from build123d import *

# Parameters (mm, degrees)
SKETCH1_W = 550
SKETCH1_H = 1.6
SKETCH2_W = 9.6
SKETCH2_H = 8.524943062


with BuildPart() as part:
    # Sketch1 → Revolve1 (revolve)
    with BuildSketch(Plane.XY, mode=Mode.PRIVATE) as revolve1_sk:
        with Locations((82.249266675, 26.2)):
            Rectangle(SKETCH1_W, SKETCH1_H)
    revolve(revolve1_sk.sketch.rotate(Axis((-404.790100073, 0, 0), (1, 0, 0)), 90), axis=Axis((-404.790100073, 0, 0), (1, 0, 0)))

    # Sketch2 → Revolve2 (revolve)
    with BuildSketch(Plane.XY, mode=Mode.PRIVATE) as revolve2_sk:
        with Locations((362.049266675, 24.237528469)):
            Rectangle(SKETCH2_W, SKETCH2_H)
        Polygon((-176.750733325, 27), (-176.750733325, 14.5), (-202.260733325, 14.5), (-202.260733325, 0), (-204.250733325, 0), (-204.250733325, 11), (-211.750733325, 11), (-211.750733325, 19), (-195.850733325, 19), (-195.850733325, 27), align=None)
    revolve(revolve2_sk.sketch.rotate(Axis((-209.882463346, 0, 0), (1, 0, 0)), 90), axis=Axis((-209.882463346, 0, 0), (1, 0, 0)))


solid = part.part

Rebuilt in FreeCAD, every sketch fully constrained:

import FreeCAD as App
import Part
import Sketcher


def add_polygon(sketch, points):
    """Adds a closed chain of lines whose ends are joined by coincident constraints."""
    first, n = sketch.GeometryCount, len(points)
    for a, b in zip(points, points[1:] + points[:1]):
        sketch.addGeometry(Part.LineSegment(App.Vector(*a, 0), App.Vector(*b, 0)), False)
    for i in range(n):
        sketch.addConstraint(Sketcher.Constraint("Coincident", first + i, 2, first + (i + 1) % n, 1))

doc = App.newDocument("Part")
body = doc.addObject("PartDesign::Body", "Body")

sketch1 = doc.addObject("Sketcher::SketchObject", "Sketch")
body.addObject(sketch1)
sketch1.AttachmentSupport = (doc.XY_Plane, [""])
sketch1.MapMode = "FlatFace"
add_polygon(sketch1, [(-192.8, 27), (-192.8, 25.4), (357.2, 25.4), (357.2, 27)])
sketch1.addConstraint([
    Sketcher.Constraint("Vertical", 0),
    Sketcher.Constraint("Horizontal", 1),
    Sketcher.Constraint("Vertical", 2),
    Sketcher.Constraint("Horizontal", 3),
    Sketcher.Constraint("DistanceX", 1, 1, 1, 2, 550.0),
    Sketcher.Constraint("DistanceY", 0, 2, 0, 1, 1.6),
    Sketcher.Constraint("DistanceY", -1, 1, 2, 2, 27.0),
    Sketcher.Constraint("DistanceX", 0, 2, -1, 1, 192.750733),
])
revolution = doc.addObject("PartDesign::Revolution", "Revolution")
body.addObject(revolution)
revolution.Profile = sketch1
revolution.ReferenceAxis = (sketch1, ["H_Axis"])
revolution.Angle = 360

sketch2 = doc.addObject("Sketcher::SketchObject", "Sketch001")
body.addObject(sketch2)
sketch2.AttachmentSupport = (doc.XY_Plane, [""])
sketch2.MapMode = "FlatFace"
add_polygon(sketch2, [(357.2, 28.5), (357.2, 20), (366.8, 20), (366.8, 28.5)])
add_polygon(sketch2, [(-176.8, 14.5), (-176.8, 27), (-195.9, 27), (-195.9, 19), (-211.8, 19), (-211.8, 11), (-204.3, 11), (-204.3, 0), (-202.3, 0), (-202.3, 14.5)])
sketch2.addConstraint([
    Sketcher.Constraint("Vertical", 0),
    Sketcher.Constraint("Horizontal", 1),
    Sketcher.Constraint("Vertical", 2),
    Sketcher.Constraint("Horizontal", 3),
    Sketcher.Constraint("Vertical", 4),
    Sketcher.Constraint("Horizontal", 5),
    Sketcher.Constraint("Vertical", 6),
    Sketcher.Constraint("Horizontal", 7),
    Sketcher.Constraint("Vertical", 8),
    Sketcher.Constraint("Horizontal", 9),
    Sketcher.Constraint("Vertical", 10),
    Sketcher.Constraint("Horizontal", 11),
    Sketcher.Constraint("Vertical", 12),
    Sketcher.Constraint("Horizontal", 13),
    Sketcher.Constraint("PointOnObject", 10, 2, -1),
    Sketcher.Constraint("Equal", 6, 8),
    Sketcher.Constraint("DistanceY", 6, 2, 6, 1, 8.0),
    Sketcher.Constraint("DistanceY", 10, 2, 10, 1, 11.0),
    Sketcher.Constraint("DistanceX", 1, 1, 1, 2, 9.6),
    Sketcher.Constraint("DistanceX", 5, 2, 5, 1, 19.1),
    Sketcher.Constraint("DistanceX", 7, 2, 7, 1, 15.9),
    Sketcher.Constraint("DistanceX", 9, 1, 9, 2, 7.5),
    Sketcher.Constraint("DistanceY", 4, 1, 4, 2, 12.5),
    Sketcher.Constraint("DistanceX", 4, 2, 3, 2, 534.0),
    Sketcher.Constraint("DistanceX", 11, 1, 11, 2, 1.99),
    Sketcher.Constraint("DistanceY", -1, 1, 2, 2, 28.5),
    Sketcher.Constraint("DistanceY", 0, 2, 0, 1, 8.524943),
    Sketcher.Constraint("DistanceX", -1, 1, 0, 2, 357.249267),
])
revolution2 = doc.addObject("PartDesign::Revolution", "Revolution001")
body.addObject(revolution2)
revolution2.Profile = sketch2
revolution2.ReferenceAxis = (sketch2, ["H_Axis"])
revolution2.Angle = 360

doc.recompute()
